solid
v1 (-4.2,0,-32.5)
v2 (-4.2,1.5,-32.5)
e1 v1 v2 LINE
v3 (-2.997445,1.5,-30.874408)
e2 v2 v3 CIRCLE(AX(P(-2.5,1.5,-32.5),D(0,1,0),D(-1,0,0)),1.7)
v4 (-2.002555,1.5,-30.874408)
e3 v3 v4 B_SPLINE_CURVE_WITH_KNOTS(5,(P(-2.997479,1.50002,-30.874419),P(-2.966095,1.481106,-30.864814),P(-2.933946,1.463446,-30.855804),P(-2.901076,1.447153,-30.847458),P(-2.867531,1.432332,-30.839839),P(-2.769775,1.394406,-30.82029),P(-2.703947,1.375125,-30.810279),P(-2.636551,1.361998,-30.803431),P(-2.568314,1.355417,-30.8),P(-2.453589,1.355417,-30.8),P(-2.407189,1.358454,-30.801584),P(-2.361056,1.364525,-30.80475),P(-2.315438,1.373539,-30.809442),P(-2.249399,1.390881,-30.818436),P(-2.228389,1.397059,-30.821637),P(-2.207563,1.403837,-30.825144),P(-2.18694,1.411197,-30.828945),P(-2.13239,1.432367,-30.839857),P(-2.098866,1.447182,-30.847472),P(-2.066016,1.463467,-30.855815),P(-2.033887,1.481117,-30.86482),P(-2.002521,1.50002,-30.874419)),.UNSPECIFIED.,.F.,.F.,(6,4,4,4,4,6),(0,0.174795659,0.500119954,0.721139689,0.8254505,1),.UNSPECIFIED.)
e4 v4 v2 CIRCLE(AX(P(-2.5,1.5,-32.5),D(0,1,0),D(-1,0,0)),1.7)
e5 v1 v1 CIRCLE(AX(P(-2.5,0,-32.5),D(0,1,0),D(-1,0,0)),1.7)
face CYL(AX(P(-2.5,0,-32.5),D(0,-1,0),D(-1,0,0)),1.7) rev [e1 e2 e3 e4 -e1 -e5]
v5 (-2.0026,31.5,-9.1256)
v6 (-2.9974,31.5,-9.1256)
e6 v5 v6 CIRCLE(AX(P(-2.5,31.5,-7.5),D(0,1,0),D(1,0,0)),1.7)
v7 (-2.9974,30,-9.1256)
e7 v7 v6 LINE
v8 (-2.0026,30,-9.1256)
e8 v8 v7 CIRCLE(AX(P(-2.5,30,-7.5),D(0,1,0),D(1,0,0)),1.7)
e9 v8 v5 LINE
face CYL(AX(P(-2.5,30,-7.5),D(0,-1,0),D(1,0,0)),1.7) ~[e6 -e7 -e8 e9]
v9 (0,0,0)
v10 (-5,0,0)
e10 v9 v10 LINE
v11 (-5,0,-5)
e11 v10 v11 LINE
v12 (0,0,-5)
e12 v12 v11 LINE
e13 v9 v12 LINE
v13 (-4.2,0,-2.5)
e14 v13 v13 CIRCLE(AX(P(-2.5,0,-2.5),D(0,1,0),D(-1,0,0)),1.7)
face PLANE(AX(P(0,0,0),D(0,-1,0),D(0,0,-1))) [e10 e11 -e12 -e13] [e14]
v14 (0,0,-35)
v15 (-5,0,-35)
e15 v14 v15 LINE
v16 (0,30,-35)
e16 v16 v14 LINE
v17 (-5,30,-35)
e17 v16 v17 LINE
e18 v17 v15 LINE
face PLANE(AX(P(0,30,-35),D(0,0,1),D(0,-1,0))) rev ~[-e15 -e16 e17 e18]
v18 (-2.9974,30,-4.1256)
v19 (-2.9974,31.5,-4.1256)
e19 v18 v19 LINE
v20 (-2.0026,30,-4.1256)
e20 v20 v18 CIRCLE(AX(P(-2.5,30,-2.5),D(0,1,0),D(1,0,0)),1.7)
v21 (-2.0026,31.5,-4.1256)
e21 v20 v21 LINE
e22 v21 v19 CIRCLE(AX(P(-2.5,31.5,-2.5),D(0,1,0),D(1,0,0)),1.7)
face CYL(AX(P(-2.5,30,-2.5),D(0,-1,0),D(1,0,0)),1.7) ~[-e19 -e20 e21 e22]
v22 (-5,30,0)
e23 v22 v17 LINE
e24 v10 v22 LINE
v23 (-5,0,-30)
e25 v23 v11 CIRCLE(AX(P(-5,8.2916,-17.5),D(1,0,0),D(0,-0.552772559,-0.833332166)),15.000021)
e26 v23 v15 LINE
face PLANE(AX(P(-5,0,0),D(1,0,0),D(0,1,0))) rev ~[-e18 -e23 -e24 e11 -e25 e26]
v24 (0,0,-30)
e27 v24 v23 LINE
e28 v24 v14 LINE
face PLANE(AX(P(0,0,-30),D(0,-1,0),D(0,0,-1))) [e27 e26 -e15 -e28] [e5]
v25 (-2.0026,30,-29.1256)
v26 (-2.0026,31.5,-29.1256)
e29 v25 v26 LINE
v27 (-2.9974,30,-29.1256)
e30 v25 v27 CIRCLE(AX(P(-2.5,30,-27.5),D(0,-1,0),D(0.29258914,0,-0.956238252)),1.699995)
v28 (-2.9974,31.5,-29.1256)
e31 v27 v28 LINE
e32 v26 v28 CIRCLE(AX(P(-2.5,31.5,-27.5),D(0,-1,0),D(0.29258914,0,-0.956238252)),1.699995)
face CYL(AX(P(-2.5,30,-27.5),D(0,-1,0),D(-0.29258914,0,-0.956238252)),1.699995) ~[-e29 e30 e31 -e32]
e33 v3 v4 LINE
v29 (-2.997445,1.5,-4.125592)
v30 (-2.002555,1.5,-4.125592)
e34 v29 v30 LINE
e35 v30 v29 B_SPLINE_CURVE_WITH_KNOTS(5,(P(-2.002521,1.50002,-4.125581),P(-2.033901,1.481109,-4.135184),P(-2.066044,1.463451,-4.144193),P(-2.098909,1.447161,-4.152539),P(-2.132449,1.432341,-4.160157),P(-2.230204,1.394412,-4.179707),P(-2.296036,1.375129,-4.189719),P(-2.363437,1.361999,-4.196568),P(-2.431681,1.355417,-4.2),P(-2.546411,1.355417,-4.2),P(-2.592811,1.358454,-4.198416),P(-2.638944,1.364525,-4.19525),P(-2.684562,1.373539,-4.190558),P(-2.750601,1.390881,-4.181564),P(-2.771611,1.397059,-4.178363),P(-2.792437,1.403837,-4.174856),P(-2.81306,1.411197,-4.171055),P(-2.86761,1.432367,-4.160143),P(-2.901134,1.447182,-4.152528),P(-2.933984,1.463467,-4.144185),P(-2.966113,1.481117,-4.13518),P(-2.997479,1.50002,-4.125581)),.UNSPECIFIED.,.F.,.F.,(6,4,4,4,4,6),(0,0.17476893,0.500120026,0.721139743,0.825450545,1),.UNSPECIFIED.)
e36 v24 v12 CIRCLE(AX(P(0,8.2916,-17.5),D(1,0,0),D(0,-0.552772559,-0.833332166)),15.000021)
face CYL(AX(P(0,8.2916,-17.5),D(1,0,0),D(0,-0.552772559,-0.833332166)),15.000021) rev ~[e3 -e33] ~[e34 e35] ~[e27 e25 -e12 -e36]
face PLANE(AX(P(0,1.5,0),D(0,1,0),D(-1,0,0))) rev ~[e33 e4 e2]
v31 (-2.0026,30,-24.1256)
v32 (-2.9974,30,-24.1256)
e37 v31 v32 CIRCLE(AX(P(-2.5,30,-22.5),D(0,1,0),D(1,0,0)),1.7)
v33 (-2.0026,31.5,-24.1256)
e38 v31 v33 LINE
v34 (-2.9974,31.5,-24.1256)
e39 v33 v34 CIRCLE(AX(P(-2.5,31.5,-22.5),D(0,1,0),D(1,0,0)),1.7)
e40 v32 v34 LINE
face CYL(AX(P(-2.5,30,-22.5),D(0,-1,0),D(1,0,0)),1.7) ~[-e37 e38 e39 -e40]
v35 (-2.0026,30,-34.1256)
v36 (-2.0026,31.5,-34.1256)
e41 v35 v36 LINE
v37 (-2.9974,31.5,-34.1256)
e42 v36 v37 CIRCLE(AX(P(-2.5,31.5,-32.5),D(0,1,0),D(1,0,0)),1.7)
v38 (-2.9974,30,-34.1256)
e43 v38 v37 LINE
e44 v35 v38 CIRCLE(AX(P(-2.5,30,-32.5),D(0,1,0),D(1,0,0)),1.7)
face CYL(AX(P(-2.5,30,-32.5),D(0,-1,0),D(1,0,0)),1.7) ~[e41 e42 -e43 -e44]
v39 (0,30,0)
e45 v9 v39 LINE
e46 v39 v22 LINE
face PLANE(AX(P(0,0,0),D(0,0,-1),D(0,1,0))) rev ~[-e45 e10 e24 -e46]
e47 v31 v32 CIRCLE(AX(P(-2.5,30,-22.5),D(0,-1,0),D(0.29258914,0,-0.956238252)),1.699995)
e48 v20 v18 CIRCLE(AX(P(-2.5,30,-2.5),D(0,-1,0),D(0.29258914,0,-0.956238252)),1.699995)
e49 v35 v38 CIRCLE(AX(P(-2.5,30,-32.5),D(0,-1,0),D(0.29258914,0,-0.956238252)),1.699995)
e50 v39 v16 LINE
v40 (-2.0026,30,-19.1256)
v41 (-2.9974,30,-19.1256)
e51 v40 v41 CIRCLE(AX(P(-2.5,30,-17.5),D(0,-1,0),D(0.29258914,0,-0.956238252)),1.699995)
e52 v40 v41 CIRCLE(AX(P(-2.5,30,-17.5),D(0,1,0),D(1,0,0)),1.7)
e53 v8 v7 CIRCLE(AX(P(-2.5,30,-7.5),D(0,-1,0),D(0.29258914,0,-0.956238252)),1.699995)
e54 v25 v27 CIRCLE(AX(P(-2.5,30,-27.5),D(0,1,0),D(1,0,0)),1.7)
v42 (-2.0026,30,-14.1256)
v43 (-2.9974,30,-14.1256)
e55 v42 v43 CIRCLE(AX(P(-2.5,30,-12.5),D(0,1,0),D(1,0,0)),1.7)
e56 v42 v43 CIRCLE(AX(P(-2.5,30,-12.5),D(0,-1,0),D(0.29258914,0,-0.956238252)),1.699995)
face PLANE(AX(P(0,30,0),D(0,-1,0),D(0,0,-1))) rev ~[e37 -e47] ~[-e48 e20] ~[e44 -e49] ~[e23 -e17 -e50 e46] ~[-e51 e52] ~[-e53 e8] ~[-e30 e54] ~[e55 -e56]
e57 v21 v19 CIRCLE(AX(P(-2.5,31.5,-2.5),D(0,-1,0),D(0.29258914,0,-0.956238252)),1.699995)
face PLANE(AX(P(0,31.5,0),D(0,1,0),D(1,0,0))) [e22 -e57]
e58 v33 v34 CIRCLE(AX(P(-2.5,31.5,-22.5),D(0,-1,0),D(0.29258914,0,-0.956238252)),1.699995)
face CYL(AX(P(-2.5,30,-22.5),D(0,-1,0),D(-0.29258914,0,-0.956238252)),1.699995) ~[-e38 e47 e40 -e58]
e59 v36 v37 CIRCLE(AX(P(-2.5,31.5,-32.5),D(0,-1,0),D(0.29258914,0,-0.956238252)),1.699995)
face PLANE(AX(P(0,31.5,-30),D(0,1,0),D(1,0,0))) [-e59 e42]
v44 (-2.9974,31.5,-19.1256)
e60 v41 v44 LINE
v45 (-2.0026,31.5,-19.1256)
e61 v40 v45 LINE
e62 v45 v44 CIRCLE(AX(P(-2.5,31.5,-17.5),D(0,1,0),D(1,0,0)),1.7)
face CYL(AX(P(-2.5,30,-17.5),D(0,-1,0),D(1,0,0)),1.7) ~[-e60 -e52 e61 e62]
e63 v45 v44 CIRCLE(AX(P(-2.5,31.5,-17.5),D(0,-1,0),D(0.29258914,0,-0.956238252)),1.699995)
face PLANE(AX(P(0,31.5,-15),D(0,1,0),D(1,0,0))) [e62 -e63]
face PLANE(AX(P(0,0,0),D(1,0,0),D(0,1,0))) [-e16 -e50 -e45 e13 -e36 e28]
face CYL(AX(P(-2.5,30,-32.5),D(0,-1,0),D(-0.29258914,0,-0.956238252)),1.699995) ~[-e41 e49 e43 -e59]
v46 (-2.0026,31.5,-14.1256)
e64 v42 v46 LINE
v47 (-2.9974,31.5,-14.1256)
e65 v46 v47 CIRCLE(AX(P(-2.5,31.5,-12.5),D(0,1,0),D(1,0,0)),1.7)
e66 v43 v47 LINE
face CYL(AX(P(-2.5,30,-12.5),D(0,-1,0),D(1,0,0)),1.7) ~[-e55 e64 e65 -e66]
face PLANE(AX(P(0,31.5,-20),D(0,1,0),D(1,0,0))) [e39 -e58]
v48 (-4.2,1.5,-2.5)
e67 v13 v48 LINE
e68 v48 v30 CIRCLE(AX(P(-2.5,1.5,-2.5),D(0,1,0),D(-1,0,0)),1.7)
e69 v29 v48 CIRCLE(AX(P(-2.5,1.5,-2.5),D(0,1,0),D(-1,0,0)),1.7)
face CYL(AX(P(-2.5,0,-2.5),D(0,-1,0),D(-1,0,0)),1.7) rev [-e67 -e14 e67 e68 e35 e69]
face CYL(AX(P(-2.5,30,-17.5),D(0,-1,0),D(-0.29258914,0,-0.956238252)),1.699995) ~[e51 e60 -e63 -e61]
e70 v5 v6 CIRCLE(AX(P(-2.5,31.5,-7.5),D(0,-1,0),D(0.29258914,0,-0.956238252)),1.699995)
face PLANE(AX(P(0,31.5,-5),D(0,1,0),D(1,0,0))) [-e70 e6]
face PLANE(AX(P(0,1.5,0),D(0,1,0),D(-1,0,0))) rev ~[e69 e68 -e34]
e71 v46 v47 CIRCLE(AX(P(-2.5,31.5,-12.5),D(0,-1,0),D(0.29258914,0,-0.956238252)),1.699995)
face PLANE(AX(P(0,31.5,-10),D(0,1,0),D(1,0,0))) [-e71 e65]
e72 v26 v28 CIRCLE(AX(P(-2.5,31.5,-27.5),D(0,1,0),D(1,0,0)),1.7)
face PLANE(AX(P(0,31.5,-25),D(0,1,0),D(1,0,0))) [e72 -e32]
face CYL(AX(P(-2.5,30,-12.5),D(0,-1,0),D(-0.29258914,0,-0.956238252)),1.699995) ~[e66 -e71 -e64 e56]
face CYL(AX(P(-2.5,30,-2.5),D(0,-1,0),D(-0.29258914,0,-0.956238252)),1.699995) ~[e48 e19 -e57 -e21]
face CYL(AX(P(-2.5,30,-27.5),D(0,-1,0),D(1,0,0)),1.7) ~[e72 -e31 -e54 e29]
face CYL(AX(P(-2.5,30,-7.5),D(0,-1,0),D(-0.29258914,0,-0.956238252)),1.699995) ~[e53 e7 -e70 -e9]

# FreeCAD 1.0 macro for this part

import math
import FreeCAD as App
import Part
import Sketcher

V = App.Vector

doc = App.newDocument("Part")
params = doc.addObject("Spreadsheet::Sheet", "Params")
for row, (alias, value) in enumerate([
    ("sketch1_radius", "15 mm"),
    ("sketch1_width", "30 mm"),
    ("sketch1_height", "5 mm"),
    ("pad1_length", "5 mm"),
    ("sketch2_diameter", "3.4 mm"),
    ("pocket1_length", "1.5 mm"),
    ("sketch3_diameter", "3.4 mm"),
    ("pad2_length", "1.5 mm"),
    ("linearpattern_pitch", "5 mm"),
], start=1):
    params.set(f"A{row}", alias)
    params.set(f"B{row}", "=" + value)
    params.setAlias(f"B{row}", alias)

body = doc.addObject("PartDesign::Body", "Body")

# Sketch on YZ plane
sketch1 = body.newObject("Sketcher::SketchObject", "Sketch")
sketch1.AttachmentSupport = (doc.getObject("YZ_Plane"), [""])
sketch1.MapMode = "FlatFace"
sketch1.addGeometry(Part.LineSegment(V(30, 0, 0), V(0, 0, 0)), False)
sketch1.addGeometry(Part.LineSegment(V(0, 0, 0), V(0, -5, 0)), False)
sketch1.addGeometry(Part.ArcOfCircle(Part.Circle(V(8, -18, 0), V(0, 0, 1), 15), math.radians(-124), math.radians(124)), False)
sketch1.addGeometry(Part.LineSegment(V(0, -30, 0), V(0, -35, 0)), False)
sketch1.addGeometry(Part.LineSegment(V(0, -35, 0), V(30, -35, 0)), False)
sketch1.addGeometry(Part.LineSegment(V(30, -35, 0), V(30, 0, 0)), False)
sketch1.addConstraint(Sketcher.Constraint("Coincident", 0, 2, 1, 1))
sketch1.addConstraint(Sketcher.Constraint("Coincident", 1, 2, 2, 2))
sketch1.addConstraint(Sketcher.Constraint("Coincident", 2, 1, 3, 1))
sketch1.addConstraint(Sketcher.Constraint("Coincident", 3, 2, 4, 1))
sketch1.addConstraint(Sketcher.Constraint("Coincident", 4, 2, 5, 1))
sketch1.addConstraint(Sketcher.Constraint("Coincident", 5, 2, 0, 1))
sketch1.addConstraint(Sketcher.Constraint("Horizontal", 0))
sketch1.addConstraint(Sketcher.Constraint("Vertical", 1))
sketch1.addConstraint(Sketcher.Constraint("Vertical", 3))
sketch1.addConstraint(Sketcher.Constraint("Horizontal", 4))
sketch1.addConstraint(Sketcher.Constraint("Vertical", 5))
sketch1.addConstraint(Sketcher.Constraint("Coincident", 0, 2, -1, 1))
sketch1.addConstraint(Sketcher.Constraint("PointOnObject", 2, 1, -2))
sketch1.addConstraint(Sketcher.Constraint("Equal", 1, 3))
sketch1.addConstraint(Sketcher.Constraint("Radius", 2, 15.0))
sketch1.addConstraint(Sketcher.Constraint("DistanceX", 0, 2, 0, 1, 30.0))
sketch1.addConstraint(Sketcher.Constraint("DistanceY", 2, 1, -1, 1, 30.0))
sketch1.addConstraint(Sketcher.Constraint("DistanceY", 1, 2, 1, 1, 5.0))
sketch1.setExpression("Constraints[14]", "Params.sketch1_radius")
sketch1.setExpression("Constraints[15]", "Params.sketch1_width")
sketch1.setExpression("Constraints[17]", "Params.sketch1_height")
pad1 = body.newObject("PartDesign::Pad", "Pad")
pad1.Profile = sketch1
pad1.setExpression("Length", "Params.pad1_length")
pad1.Reversed = True

# Sketch on XZ plane
sketch2 = body.newObject("Sketcher::SketchObject", "Sketch001")
sketch2.AttachmentSupport = (doc.getObject("XZ_Plane"), [""])
sketch2.MapMode = "FlatFace"
sketch2.addGeometry(Part.Circle(V(-2.5, -2.5, 0), V(0, 0, 1), 1.7), False)
sketch2.addGeometry(Part.Circle(V(-2.5, -32.5, 0), V(0, 0, 1), 1.7), False)
sketch2.addConstraint(Sketcher.Constraint("Equal", 0, 1))
sketch2.addConstraint(Sketcher.Constraint("Vertical", 0, 3, 1, 3))
sketch2.addConstraint(Sketcher.Constraint("Diameter", 0, 3.4))
sketch2.addConstraint(Sketcher.Constraint("DistanceX", 0, 3, -1, 1, 2.5))
sketch2.addConstraint(Sketcher.Constraint("DistanceY", 0, 3, -1, 1, 2.5))
sketch2.addConstraint(Sketcher.Constraint("DistanceY", 1, 3, 0, 3, 30.0))
sketch2.setExpression("Constraints[2]", "Params.sketch2_diameter")
pocket1 = body.newObject("PartDesign::Pocket", "Pocket")
pocket1.Profile = sketch2
pocket1.setExpression("Length", "Params.pocket1_length")

# Sketch on XZ plane
sketch3 = body.newObject("Sketcher::SketchObject", "Sketch002")
sketch3.AttachmentSupport = (doc.getObject("XZ_Plane"), [""])
sketch3.MapMode = "FlatFace"
sketch3.AttachmentOffset = App.Placement(V(0, 0, -30), App.Rotation())
sketch3.addGeometry(Part.Circle(V(-2.5, -2.5, 0), V(0, 0, 1), 1.7), False)
sketch3.addConstraint(Sketcher.Constraint("Diameter", 0, 3.4))
sketch3.addConstraint(Sketcher.Constraint("DistanceX", 0, 3, -1, 1, 2.5))
sketch3.addConstraint(Sketcher.Constraint("DistanceY", 0, 3, -1, 1, 2.5))
sketch3.setExpression("Constraints[0]", "Params.sketch3_diameter")
pad2 = body.newObject("PartDesign::Pad", "Pad001")
pad2.Profile = sketch3
pad2.setExpression("Length", "Params.pad2_length")
pad2.Reversed = True
doc.recompute()

linearpattern = body.newObject("PartDesign::LinearPattern", "LinearPattern")
linearpattern.Originals = [pad2]
linearpattern.Direction = (doc.getObject("Z_Axis"), [""])
linearpattern.Mode = "offset"
linearpattern.setExpression("Offset", "Params.linearpattern_pitch")
linearpattern.Occurrences = 7
linearpattern.Reversed = True
body.Tip = linearpattern

doc.recompute()
